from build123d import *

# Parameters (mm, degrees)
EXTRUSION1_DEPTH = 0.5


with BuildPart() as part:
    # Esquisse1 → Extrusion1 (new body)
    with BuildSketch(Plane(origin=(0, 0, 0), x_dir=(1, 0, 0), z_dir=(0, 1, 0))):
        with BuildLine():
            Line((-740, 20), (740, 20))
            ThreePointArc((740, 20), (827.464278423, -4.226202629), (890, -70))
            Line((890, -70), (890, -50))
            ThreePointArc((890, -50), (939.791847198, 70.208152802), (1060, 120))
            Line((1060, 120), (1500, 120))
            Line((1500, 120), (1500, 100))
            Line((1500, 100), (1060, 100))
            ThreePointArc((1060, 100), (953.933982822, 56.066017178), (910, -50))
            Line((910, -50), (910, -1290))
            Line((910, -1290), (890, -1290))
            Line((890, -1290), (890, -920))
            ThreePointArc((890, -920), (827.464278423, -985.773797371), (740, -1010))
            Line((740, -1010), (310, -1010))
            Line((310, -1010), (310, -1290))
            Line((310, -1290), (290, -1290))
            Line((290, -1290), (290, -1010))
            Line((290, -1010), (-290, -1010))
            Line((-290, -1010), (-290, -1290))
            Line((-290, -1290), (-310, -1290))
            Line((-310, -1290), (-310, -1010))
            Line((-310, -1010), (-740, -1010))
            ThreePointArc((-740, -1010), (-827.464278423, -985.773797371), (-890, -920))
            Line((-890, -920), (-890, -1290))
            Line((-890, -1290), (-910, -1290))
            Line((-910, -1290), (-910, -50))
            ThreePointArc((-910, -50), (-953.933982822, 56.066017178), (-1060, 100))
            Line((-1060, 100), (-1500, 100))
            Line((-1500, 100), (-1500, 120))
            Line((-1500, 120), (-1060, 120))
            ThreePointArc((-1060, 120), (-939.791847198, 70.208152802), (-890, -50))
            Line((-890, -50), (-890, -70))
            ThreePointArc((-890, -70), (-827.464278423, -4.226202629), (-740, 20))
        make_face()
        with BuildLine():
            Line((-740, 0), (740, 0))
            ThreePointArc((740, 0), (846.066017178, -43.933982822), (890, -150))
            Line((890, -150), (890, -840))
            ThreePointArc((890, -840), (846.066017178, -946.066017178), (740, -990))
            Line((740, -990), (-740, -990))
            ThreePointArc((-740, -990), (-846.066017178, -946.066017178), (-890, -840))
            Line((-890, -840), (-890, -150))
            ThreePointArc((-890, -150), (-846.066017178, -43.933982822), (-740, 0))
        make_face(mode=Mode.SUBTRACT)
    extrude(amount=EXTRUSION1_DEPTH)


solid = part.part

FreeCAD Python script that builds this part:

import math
import FreeCAD as App
import Part
import Sketcher

doc = App.newDocument("Part")
params = doc.addObject("Spreadsheet::Sheet", "Params")
for row, (alias, value) in enumerate([
    ("sketch1_radius", "170 mm"),
    ("sketch1_radius2", "150 mm"),
    ("sketch1_width", "1480 mm"),
    ("sketch1_width2", "440 mm"),
    ("sketch1_width3", "430 mm"),
    ("pad1_length", "0.5 mm"),
], start=1):
    params.set(f"A{row}", alias)
    params.set(f"B{row}", "=" + value)
    params.setAlias(f"B{row}", alias)

body = doc.addObject("PartDesign::Body", "Body")

# Sketch on XZ plane
sketch1 = doc.addObject("Sketcher::SketchObject", "Sketch")
body.addObject(sketch1)
sketch1.AttachmentSupport = (doc.XZ_Plane, [""])
sketch1.MapMode = "FlatFace"
sketch1.addGeometry([
    Part.LineSegment(App.Vector(740, -20, 0), App.Vector(-740, -20, 0)),  # 0
    Part.ArcOfCircle(Part.Circle(App.Vector(-740, 150, 0), App.Vector(0, 0, 1), 170), math.radians(-152), math.radians(-90)),  # 1
    Part.LineSegment(App.Vector(-890, 70, 0), App.Vector(-890, 50, 0)),  # 2
    Part.ArcOfCircle(Part.Circle(App.Vector(-1060, 50, 0), App.Vector(0, 0, 1), 170), math.radians(-90), math.radians(0)),  # 3
    Part.LineSegment(App.Vector(-1060, -120, 0), App.Vector(-1500, -120, 0)),  # 4
    Part.LineSegment(App.Vector(-1500, -120, 0), App.Vector(-1500, -100, 0)),  # 5
    Part.LineSegment(App.Vector(-1500, -100, 0), App.Vector(-1060, -100, 0)),  # 6
    Part.ArcOfCircle(Part.Circle(App.Vector(-1060, 50, 0), App.Vector(0, 0, 1), 150), math.radians(-90), math.radians(0)),  # 7
    Part.LineSegment(App.Vector(-910, 50, 0), App.Vector(-910, 1290, 0)),  # 8
    Part.LineSegment(App.Vector(-910, 1290, 0), App.Vector(-890, 1290, 0)),  # 9
    Part.LineSegment(App.Vector(-890, 1290, 0), App.Vector(-890, 920, 0)),  # 10
    Part.ArcOfCircle(Part.Circle(App.Vector(-740, 840, 0), App.Vector(0, 0, 1), 170), math.radians(90), math.radians(152)),  # 11
    Part.LineSegment(App.Vector(-740, 1010, 0), App.Vector(-310, 1010, 0)),  # 12
    Part.LineSegment(App.Vector(-310, 1010, 0), App.Vector(-310, 1290, 0)),  # 13
    Part.LineSegment(App.Vector(-310, 1290, 0), App.Vector(-290, 1290, 0)),  # 14
    Part.LineSegment(App.Vector(-290, 1290, 0), App.Vector(-290, 1010, 0)),  # 15
    Part.LineSegment(App.Vector(-290, 1010, 0), App.Vector(290, 1010, 0)),  # 16
    Part.LineSegment(App.Vector(290, 1010, 0), App.Vector(290, 1290, 0)),  # 17
    Part.LineSegment(App.Vector(290, 1290, 0), App.Vector(310, 1290, 0)),  # 18
    Part.LineSegment(App.Vector(310, 1290, 0), App.Vector(310, 1010, 0)),  # 19
    Part.LineSegment(App.Vector(310, 1010, 0), App.Vector(740, 1010, 0)),  # 20
    Part.ArcOfCircle(Part.Circle(App.Vector(740, 840, 0), App.Vector(0, 0, 1), 170), math.radians(28), math.radians(90)),  # 21
    Part.LineSegment(App.Vector(890, 920, 0), App.Vector(890, 1290, 0)),  # 22
    Part.LineSegment(App.Vector(890, 1290, 0), App.Vector(910, 1290, 0)),  # 23
    Part.LineSegment(App.Vector(910, 1290, 0), App.Vector(910, 50, 0)),  # 24
    Part.ArcOfCircle(Part.Circle(App.Vector(1060, 50, 0), App.Vector(0, 0, 1), 150), math.radians(180), math.radians(270)),  # 25
    Part.LineSegment(App.Vector(1060, -100, 0), App.Vector(1500, -100, 0)),  # 26
    Part.LineSegment(App.Vector(1500, -100, 0), App.Vector(1500, -120, 0)),  # 27
    Part.LineSegment(App.Vector(1500, -120, 0), App.Vector(1060, -120, 0)),  # 28
    Part.ArcOfCircle(Part.Circle(App.Vector(1060, 50, 0), App.Vector(0, 0, 1), 170), math.radians(180), math.radians(270)),  # 29
    Part.LineSegment(App.Vector(890, 50, 0), App.Vector(890, 70, 0)),  # 30
    Part.ArcOfCircle(Part.Circle(App.Vector(740, 150, 0), App.Vector(0, 0, 1), 170), math.radians(-90), math.radians(-28)),  # 31
    Part.LineSegment(App.Vector(-740, 0, 0), App.Vector(740, 0, 0)),  # 32
    Part.ArcOfCircle(Part.Circle(App.Vector(740, 150, 0), App.Vector(0, 0, 1), 150), math.radians(-90), math.radians(0)),  # 33
    Part.LineSegment(App.Vector(890, 150, 0), App.Vector(890, 840, 0)),  # 34
    Part.ArcOfCircle(Part.Circle(App.Vector(740, 840, 0), App.Vector(0, 0, 1), 150), math.radians(0), math.radians(90)),  # 35
    Part.LineSegment(App.Vector(740, 990, 0), App.Vector(-740, 990, 0)),  # 36
    Part.ArcOfCircle(Part.Circle(App.Vector(-740, 840, 0), App.Vector(0, 0, 1), 150), math.radians(90), math.radians(180)),  # 37
    Part.LineSegment(App.Vector(-890, 840, 0), App.Vector(-890, 150, 0)),  # 38
    Part.ArcOfCircle(Part.Circle(App.Vector(-740, 150, 0), App.Vector(0, 0, 1), 150), math.radians(180), math.radians(270)),  # 39
], False)
sketch1.addConstraint([
    Sketcher.Constraint("Tangent", 0, 2, 1, 2),
    Sketcher.Constraint("Coincident", 1, 1, 2, 1),
    Sketcher.Constraint("Tangent", 2, 2, 3, 2),
    Sketcher.Constraint("Tangent", 3, 1, 4, 1),
    Sketcher.Constraint("Coincident", 4, 2, 5, 1),
    Sketcher.Constraint("Coincident", 5, 2, 6, 1),
    Sketcher.Constraint("Tangent", 6, 2, 7, 1),
    Sketcher.Constraint("Tangent", 7, 2, 8, 1),
    Sketcher.Constraint("Coincident", 8, 2, 9, 1),
    Sketcher.Constraint("Coincident", 9, 2, 10, 1),
    Sketcher.Constraint("Coincident", 10, 2, 11, 2),
    Sketcher.Constraint("Tangent", 11, 1, 12, 1),
    Sketcher.Constraint("Coincident", 12, 2, 13, 1),
    Sketcher.Constraint("Coincident", 13, 2, 14, 1),
    Sketcher.Constraint("Coincident", 14, 2, 15, 1),
    Sketcher.Constraint("Coincident", 15, 2, 16, 1),
    Sketcher.Constraint("Coincident", 16, 2, 17, 1),
    Sketcher.Constraint("Coincident", 17, 2, 18, 1),
    Sketcher.Constraint("Coincident", 18, 2, 19, 1),
    Sketcher.Constraint("Coincident", 19, 2, 20, 1),
    Sketcher.Constraint("Tangent", 20, 2, 21, 2),
    Sketcher.Constraint("Coincident", 21, 1, 22, 1),
    Sketcher.Constraint("Coincident", 22, 2, 23, 1),
    Sketcher.Constraint("Coincident", 23, 2, 24, 1),
    Sketcher.Constraint("Tangent", 24, 2, 25, 1),
    Sketcher.Constraint("Tangent", 25, 2, 26, 1),
    Sketcher.Constraint("Coincident", 26, 2, 27, 1),
    Sketcher.Constraint("Coincident", 27, 2, 28, 1),
    Sketcher.Constraint("Tangent", 28, 2, 29, 2),
    Sketcher.Constraint("Tangent", 29, 1, 30, 1),
    Sketcher.Constraint("Coincident", 30, 2, 31, 2),
    Sketcher.Constraint("Tangent", 31, 1, 0, 1),
    Sketcher.Constraint("Tangent", 32, 2, 33, 1),
    Sketcher.Constraint("Tangent", 33, 2, 34, 1),
    Sketcher.Constraint("Tangent", 34, 2, 35, 1),
    Sketcher.Constraint("Tangent", 35, 2, 36, 1),
    Sketcher.Constraint("Tangent", 36, 2, 37, 1),
    Sketcher.Constraint("Tangent", 37, 2, 38, 1),
    Sketcher.Constraint("Tangent", 38, 2, 39, 1),
    Sketcher.Constraint("Tangent", 39, 2, 32, 1),
    Sketcher.Constraint("Horizontal", 0),
    Sketcher.Constraint("Vertical", 2),
    Sketcher.Constraint("Horizontal", 4),
    Sketcher.Constraint("Vertical", 5),
    Sketcher.Constraint("Horizontal", 6),
    Sketcher.Constraint("Vertical", 8),
    Sketcher.Constraint("Horizontal", 9),
    Sketcher.Constraint("Vertical", 10),
    Sketcher.Constraint("Horizontal", 12),
    Sketcher.Constraint("Vertical", 13),
    Sketcher.Constraint("Horizontal", 14),
    Sketcher.Constraint("Vertical", 15),
    Sketcher.Constraint("Horizontal", 16),
    Sketcher.Constraint("Vertical", 17),
    Sketcher.Constraint("Horizontal", 18),
    Sketcher.Constraint("Vertical", 19),
    Sketcher.Constraint("Horizontal", 20),
    Sketcher.Constraint("Vertical", 22),
    Sketcher.Constraint("Horizontal", 23),
    Sketcher.Constraint("Vertical", 24),
    Sketcher.Constraint("Horizontal", 26),
    Sketcher.Constraint("Vertical", 27),
    Sketcher.Constraint("Horizontal", 28),
    Sketcher.Constraint("Vertical", 30),
    Sketcher.Constraint("Horizontal", 32),
    Sketcher.Constraint("Vertical", 34),
    Sketcher.Constraint("Horizontal", 36),
    Sketcher.Constraint("Vertical", 38),
    Sketcher.Constraint("Coincident", 7, 3, 3, 3),
    Sketcher.Constraint("Coincident", 29, 3, 25, 3),
    Sketcher.Constraint("Coincident", 33, 3, 31, 3),
    Sketcher.Constraint("Coincident", 35, 3, 21, 3),
    Sketcher.Constraint("Coincident", 37, 3, 11, 3),
    Sketcher.Constraint("Coincident", 39, 3, 1, 3),
    Sketcher.Constraint("Equal", 1, 3),
    Sketcher.Constraint("Equal", 3, 11),
    Sketcher.Constraint("Equal", 11, 21),
    Sketcher.Constraint("Equal", 7, 25),
    Sketcher.Constraint("Equal", 21, 29),
    Sketcher.Constraint("Equal", 29, 31),
    Sketcher.Constraint("Equal", 25, 33),
    Sketcher.Constraint("Equal", 33, 35),
    Sketcher.Constraint("Equal", 35, 37),
    Sketcher.Constraint("Symmetric", 32, 2, 39, 2, -1, 1),
    Sketcher.Constraint("Symmetric", 3, 3, 25, 3, -2),
    Sketcher.Constraint("Symmetric", 14, 2, 17, 2, -2),
    Sketcher.Constraint("Symmetric", 9, 2, 22, 2, -2),
    Sketcher.Constraint("Horizontal", 9, 2, 13, 2),
    Sketcher.Constraint("Horizontal", 12, 2, 15, 2),
    Sketcher.Constraint("Vertical", 2, 2, 9, 2),
    Sketcher.Constraint("Vertical", 30, 2, 33, 2),
    Sketcher.Constraint("Equal", 9, 14),
    Sketcher.Constraint("Equal", 14, 18),
    Sketcher.Constraint("Equal", 6, 26),
    Sketcher.Constraint("Equal", 23, 2),
    Sketcher.Constraint("Radius", 1, 170.0),
    Sketcher.Constraint("Radius", 7, 150.0),
    Sketcher.Constraint("DistanceX", 0, 2, 0, 1, 1480.0),
    Sketcher.Constraint("DistanceX", 4, 2, 4, 1, 440.0),
    Sketcher.Constraint("DistanceX", 12, 1, 12, 2, 430.0),
    Sketcher.Constraint("DistanceY", 8, 1, 8, 2, 1240.0),
    Sketcher.Constraint("DistanceY", 10, 2, 10, 1, 370.0),
])
sketch1.setExpression("Constraints[95]", "Params.sketch1_radius")
sketch1.setExpression("Constraints[96]", "Params.sketch1_radius2")
sketch1.setExpression("Constraints[97]", "Params.sketch1_width")
sketch1.setExpression("Constraints[98]", "Params.sketch1_width2")
sketch1.setExpression("Constraints[99]", "Params.sketch1_width3")
pad1 = doc.addObject("PartDesign::Pad", "Pad")
body.addObject(pad1)
pad1.Profile = sketch1
pad1.setExpression("Length", "Params.pad1_length")
pad1.Reversed = True

doc.recompute()
